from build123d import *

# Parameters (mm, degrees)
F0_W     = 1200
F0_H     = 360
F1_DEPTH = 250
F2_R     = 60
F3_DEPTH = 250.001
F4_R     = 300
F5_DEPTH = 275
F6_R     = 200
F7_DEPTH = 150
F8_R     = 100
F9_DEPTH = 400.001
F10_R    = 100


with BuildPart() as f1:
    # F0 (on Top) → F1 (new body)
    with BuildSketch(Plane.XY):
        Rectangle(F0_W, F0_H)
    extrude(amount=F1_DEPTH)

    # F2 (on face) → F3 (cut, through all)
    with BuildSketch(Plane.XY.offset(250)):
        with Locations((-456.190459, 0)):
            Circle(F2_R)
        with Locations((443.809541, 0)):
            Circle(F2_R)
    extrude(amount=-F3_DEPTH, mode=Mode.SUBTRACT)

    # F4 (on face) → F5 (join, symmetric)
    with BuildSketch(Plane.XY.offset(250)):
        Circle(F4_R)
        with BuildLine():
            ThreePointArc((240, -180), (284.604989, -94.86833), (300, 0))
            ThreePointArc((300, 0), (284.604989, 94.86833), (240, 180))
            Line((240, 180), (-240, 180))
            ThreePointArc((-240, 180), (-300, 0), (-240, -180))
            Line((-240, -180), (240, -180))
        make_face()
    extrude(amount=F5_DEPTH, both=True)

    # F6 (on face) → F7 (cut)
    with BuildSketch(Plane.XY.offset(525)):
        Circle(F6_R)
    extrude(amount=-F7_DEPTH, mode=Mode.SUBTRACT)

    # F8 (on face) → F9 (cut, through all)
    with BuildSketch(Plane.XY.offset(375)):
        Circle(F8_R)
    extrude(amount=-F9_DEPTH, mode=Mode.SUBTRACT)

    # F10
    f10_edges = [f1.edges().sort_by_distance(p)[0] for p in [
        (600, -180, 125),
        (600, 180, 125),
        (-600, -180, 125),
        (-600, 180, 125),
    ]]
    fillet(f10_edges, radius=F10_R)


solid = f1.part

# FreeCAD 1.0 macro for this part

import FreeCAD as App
import Part
import Sketcher

V = App.Vector


def edges_at(feature, points):
    """Names of the edges that pass closest to the given points."""
    edges = feature.Shape.Edges
    near = lambda p: min(range(len(edges)), key=lambda i: edges[i].distToShape(Part.Vertex(*p))[0])
    return sorted({f"Edge{near(p) + 1}" for p in points})

doc = App.newDocument("Part")
body = doc.addObject("PartDesign::Body", "Body")

# Sketch on XY plane
sketch1 = doc.addObject("Sketcher::SketchObject", "Sketch")
body.addObject(sketch1)
sketch1.AttachmentSupport = (doc.XY_Plane, [""])
sketch1.MapMode = "FlatFace"
sketch1.addGeometry([
    Part.LineSegment(V(-600, 180, 0), V(-600, -180, 0)),
    Part.LineSegment(V(-600, -180, 0), V(600, -180, 0)),
    Part.LineSegment(V(600, -180, 0), V(600, 180, 0)),
    Part.LineSegment(V(600, 180, 0), V(-600, 180, 0)),
], False)
sketch1.addConstraint([
    Sketcher.Constraint("Coincident", 0, 2, 1, 1),
    Sketcher.Constraint("Coincident", 1, 2, 2, 1),
    Sketcher.Constraint("Coincident", 2, 2, 3, 1),
    Sketcher.Constraint("Coincident", 3, 2, 0, 1),
    Sketcher.Constraint("Vertical", 0),
    Sketcher.Constraint("Horizontal", 1),
    Sketcher.Constraint("Vertical", 2),
    Sketcher.Constraint("Horizontal", 3),
    Sketcher.Constraint("Symmetric", 0, 2, 2, 2, -1, 1),
    Sketcher.Constraint("DistanceX", 1, 1, 1, 2, 1200.0),
    Sketcher.Constraint("DistanceY", 0, 2, 0, 1, 360.0),
])
pad1 = doc.addObject("PartDesign::Pad", "Pad")
body.addObject(pad1)
pad1.Profile = sketch1
pad1.Length = 250

# Sketch on XY plane
sketch2 = doc.addObject("Sketcher::SketchObject", "Sketch001")
body.addObject(sketch2)
sketch2.AttachmentSupport = (doc.XY_Plane, [""])
sketch2.MapMode = "FlatFace"
sketch2.AttachmentOffset = App.Placement(V(0, 0, 250), App.Rotation())
sketch2.addGeometry([
    Part.Circle(V(-456, 0, 0), V(0, 0, 1), 60),
    Part.Circle(V(444, 0, 0), V(0, 0, 1), 60),
], False)
sketch2.addConstraint([
    Sketcher.Constraint("Equal", 0, 1),
    Sketcher.Constraint("PointOnObject", 0, 3, -1),
    Sketcher.Constraint("PointOnObject", 1, 3, -1),
    Sketcher.Constraint("Diameter", 0, 120.0),
    Sketcher.Constraint("DistanceX", 0, 3, 1, 3, 900.0),
    Sketcher.Constraint("DistanceX", 0, 3, -1, 1, 456.190459),
])
pocket1 = doc.addObject("PartDesign::Pocket", "Pocket")
body.addObject(pocket1)
pocket1.Profile = sketch2
pocket1.Type = "ThroughAll"

# Sketch on XY plane
sketch3 = doc.addObject("Sketcher::SketchObject", "Sketch002")
body.addObject(sketch3)
sketch3.AttachmentSupport = (doc.XY_Plane, [""])
sketch3.MapMode = "FlatFace"
sketch3.AttachmentOffset = App.Placement(V(0, 0, 250), App.Rotation())
sketch3.addGeometry(Part.Circle(V(0, 0, 0), V(0, 0, 1), 300), False)
sketch3.addConstraint([
    Sketcher.Constraint("Coincident", 0, 3, -1, 1),
    Sketcher.Constraint("Diameter", 0, 600.0),
])
pad2 = doc.addObject("PartDesign::Pad", "Pad001")
body.addObject(pad2)
pad2.Profile = sketch3
pad2.Length = 550
pad2.Midplane = True

# Sketch on XY plane
sketch4 = doc.addObject("Sketcher::SketchObject", "Sketch003")
body.addObject(sketch4)
sketch4.AttachmentSupport = (doc.XY_Plane, [""])
sketch4.MapMode = "FlatFace"
sketch4.AttachmentOffset = App.Placement(V(0, 0, 525), App.Rotation())
sketch4.addGeometry(Part.Circle(V(0, 0, 0), V(0, 0, 1), 200), False)
sketch4.addConstraint([
    Sketcher.Constraint("Coincident", 0, 3, -1, 1),
    Sketcher.Constraint("Diameter", 0, 400.0),
])
pocket2 = doc.addObject("PartDesign::Pocket", "Pocket001")
body.addObject(pocket2)
pocket2.Profile = sketch4
pocket2.Length = 150

# Sketch on XY plane
sketch5 = doc.addObject("Sketcher::SketchObject", "Sketch004")
body.addObject(sketch5)
sketch5.AttachmentSupport = (doc.XY_Plane, [""])
sketch5.MapMode = "FlatFace"
sketch5.AttachmentOffset = App.Placement(V(0, 0, 375), App.Rotation())
sketch5.addGeometry(Part.Circle(V(0, 0, 0), V(0, 0, 1), 100), False)
sketch5.addConstraint([
    Sketcher.Constraint("Coincident", 0, 3, -1, 1),
    Sketcher.Constraint("Diameter", 0, 200.0),
])
pocket3 = doc.addObject("PartDesign::Pocket", "Pocket002")
body.addObject(pocket3)
pocket3.Profile = sketch5
pocket3.Type = "ThroughAll"
doc.recompute()

fillet = doc.addObject("PartDesign::Fillet", "Fillet")
body.addObject(fillet)
fillet.Base = (pocket3, edges_at(pocket3, [
    (600, -180, 125),
    (600, 180, 125),
    (-600, -180, 125),
    (-600, 180, 125),
]))
fillet.Radius = 100

doc.recompute()
